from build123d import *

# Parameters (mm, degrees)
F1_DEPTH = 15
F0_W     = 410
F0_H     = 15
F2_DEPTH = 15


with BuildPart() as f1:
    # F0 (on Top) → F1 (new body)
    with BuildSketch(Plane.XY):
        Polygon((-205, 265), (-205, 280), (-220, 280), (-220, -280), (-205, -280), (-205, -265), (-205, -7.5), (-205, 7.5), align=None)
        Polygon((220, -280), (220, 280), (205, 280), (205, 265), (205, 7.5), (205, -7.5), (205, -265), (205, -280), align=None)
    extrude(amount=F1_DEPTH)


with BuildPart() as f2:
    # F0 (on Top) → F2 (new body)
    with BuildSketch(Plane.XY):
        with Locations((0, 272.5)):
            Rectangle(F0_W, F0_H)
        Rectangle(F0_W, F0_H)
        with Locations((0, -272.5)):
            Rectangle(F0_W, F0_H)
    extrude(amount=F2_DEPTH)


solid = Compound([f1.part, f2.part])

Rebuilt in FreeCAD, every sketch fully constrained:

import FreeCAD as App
import Part
import Sketcher
from FreeCAD import Vector

doc = App.newDocument("Part")
params = doc.addObject("Spreadsheet::Sheet", "Params")
for row, (alias, value) in enumerate([
    ("sketch1_width", "15 mm"),
    ("sketch1_height", "560 mm"),
    ("pad1_length", "15 mm"),
    ("sketch2_width", "410 mm"),
    ("sketch2_height", "15 mm"),
    ("pad2_length", "15 mm"),
], start=1):
    params.set(f"A{row}", alias)
    params.set(f"B{row}", "=" + value)
    params.setAlias(f"B{row}", alias)

body = doc.addObject("PartDesign::Body", "Body")
body.AllowCompound = True

sketch1 = body.newObject("Sketcher::SketchObject", "Sketch")
sketch1.AttachmentSupport = (doc.getObject("XY_Plane"), [""])
sketch1.MapMode = "FlatFace"
sketch1.addGeometry([
    Part.LineSegment(Vector(-205, 280, 0), Vector(-220, 280, 0)),
    Part.LineSegment(Vector(-220, 280, 0), Vector(-220, -280, 0)),
    Part.LineSegment(Vector(-220, -280, 0), Vector(-205, -280, 0)),
    Part.LineSegment(Vector(-205, -280, 0), Vector(-205, 280, 0)),
    Part.LineSegment(Vector(220, -280, 0), Vector(220, 280, 0)),
    Part.LineSegment(Vector(220, 280, 0), Vector(205, 280, 0)),
    Part.LineSegment(Vector(205, 280, 0), Vector(205, -280, 0)),
    Part.LineSegment(Vector(205, -280, 0), Vector(220, -280, 0)),
], False)
sketch1.addConstraint([
    Sketcher.Constraint("Coincident", 0, 2, 1, 1),
    Sketcher.Constraint("Coincident", 1, 2, 2, 1),
    Sketcher.Constraint("Coincident", 2, 2, 3, 1),
    Sketcher.Constraint("Coincident", 3, 2, 0, 1),
    Sketcher.Constraint("Coincident", 4, 2, 5, 1),
    Sketcher.Constraint("Coincident", 5, 2, 6, 1),
    Sketcher.Constraint("Coincident", 6, 2, 7, 1),
    Sketcher.Constraint("Coincident", 7, 2, 4, 1),
    Sketcher.Constraint("Horizontal", 0),
    Sketcher.Constraint("Vertical", 1),
    Sketcher.Constraint("Horizontal", 2),
    Sketcher.Constraint("Vertical", 3),
    Sketcher.Constraint("Vertical", 4),
    Sketcher.Constraint("Horizontal", 5),
    Sketcher.Constraint("Vertical", 6),
    Sketcher.Constraint("Horizontal", 7),
    Sketcher.Constraint("Symmetric", 1, 2, 4, 2, -1, 1),
    Sketcher.Constraint("Symmetric", 3, 2, 6, 2, -1, 1),
    Sketcher.Constraint("Horizontal", 3, 2, 4, 2),
    Sketcher.Constraint("DistanceX", 0, 2, 0, 1, 15.0),
    Sketcher.Constraint("DistanceY", 1, 2, 1, 1, 560.0),
    Sketcher.Constraint("DistanceX", 0, 2, -1, 1, 220.0),
])
sketch1.setExpression("Constraints[19]", "Params.sketch1_width")
sketch1.setExpression("Constraints[20]", "Params.sketch1_height")
pad1 = body.newObject("PartDesign::Pad", "Pad")
pad1.Profile = sketch1
pad1.setExpression("Length", "Params.pad1_length")
body2 = doc.addObject("PartDesign::Body", "Body001")
body2.AllowCompound = True

sketch2 = body2.newObject("Sketcher::SketchObject", "Sketch001")
sketch2.AttachmentSupport = (doc.getObject("XY_Plane001"), [""])
sketch2.MapMode = "FlatFace"
sketch2.addGeometry([
    Part.LineSegment(Vector(-205, 280, 0), Vector(-205, 265, 0)),
    Part.LineSegment(Vector(-205, 265, 0), Vector(205, 265, 0)),
    Part.LineSegment(Vector(205, 265, 0), Vector(205, 280, 0)),
    Part.LineSegment(Vector(205, 280, 0), Vector(-205, 280, 0)),
    Part.LineSegment(Vector(-205, 8, 0), Vector(-205, -8, 0)),
    Part.LineSegment(Vector(-205, -8, 0), Vector(205, -8, 0)),
    Part.LineSegment(Vector(205, -8, 0), Vector(205, 8, 0)),
    Part.LineSegment(Vector(205, 8, 0), Vector(-205, 8, 0)),
    Part.LineSegment(Vector(-205, -265, 0), Vector(-205, -280, 0)),
    Part.LineSegment(Vector(-205, -280, 0), Vector(205, -280, 0)),
    Part.LineSegment(Vector(205, -280, 0), Vector(205, -265, 0)),
    Part.LineSegment(Vector(205, -265, 0), Vector(-205, -265, 0)),
], False)
sketch2.addConstraint([
    Sketcher.Constraint("Coincident", 0, 2, 1, 1),
    Sketcher.Constraint("Coincident", 1, 2, 2, 1),
    Sketcher.Constraint("Coincident", 2, 2, 3, 1),
    Sketcher.Constraint("Coincident", 3, 2, 0, 1),
    Sketcher.Constraint("Coincident", 4, 2, 5, 1),
    Sketcher.Constraint("Coincident", 5, 2, 6, 1),
    Sketcher.Constraint("Coincident", 6, 2, 7, 1),
    Sketcher.Constraint("Coincident", 7, 2, 4, 1),
    Sketcher.Constraint("Coincident", 8, 2, 9, 1),
    Sketcher.Constraint("Coincident", 9, 2, 10, 1),
    Sketcher.Constraint("Coincident", 10, 2, 11, 1),
    Sketcher.Constraint("Coincident", 11, 2, 8, 1),
    Sketcher.Constraint("Vertical", 0),
    Sketcher.Constraint("Horizontal", 1),
    Sketcher.Constraint("Vertical", 2),
    Sketcher.Constraint("Horizontal", 3),
    Sketcher.Constraint("Vertical", 4),
    Sketcher.Constraint("Horizontal", 5),
    Sketcher.Constraint("Vertical", 6),
    Sketcher.Constraint("Horizontal", 7),
    Sketcher.Constraint("Vertical", 8),
    Sketcher.Constraint("Horizontal", 9),
    Sketcher.Constraint("Vertical", 10),
    Sketcher.Constraint("Horizontal", 11),
    Sketcher.Constraint("Symmetric", 4, 2, 6, 2, -1, 1),
    Sketcher.Constraint("Symmetric", 2, 2, 8, 2, -1, 1),
    Sketcher.Constraint("Symmetric", 0, 2, 10, 2, -1, 1),
    Sketcher.Constraint("Vertical", 3, 2, 4, 2),
    Sketcher.Constraint("Vertical", 2, 2, 5, 2),
    Sketcher.Constraint("Equal", 2, 4),
    Sketcher.Constraint("DistanceX", 1, 1, 1, 2, 410.0),
    Sketcher.Constraint("DistanceY", 0, 2, 0, 1, 15.0),
    Sketcher.Constraint("DistanceY", -1, 1, 0, 2, 265.0),
])
sketch2.setExpression("Constraints[30]", "Params.sketch2_width")
sketch2.setExpression("Constraints[31]", "Params.sketch2_height")
pad2 = body2.newObject("PartDesign::Pad", "Pad001")
pad2.Profile = sketch2
pad2.setExpression("Length", "Params.pad2_length")

doc.recompute()
